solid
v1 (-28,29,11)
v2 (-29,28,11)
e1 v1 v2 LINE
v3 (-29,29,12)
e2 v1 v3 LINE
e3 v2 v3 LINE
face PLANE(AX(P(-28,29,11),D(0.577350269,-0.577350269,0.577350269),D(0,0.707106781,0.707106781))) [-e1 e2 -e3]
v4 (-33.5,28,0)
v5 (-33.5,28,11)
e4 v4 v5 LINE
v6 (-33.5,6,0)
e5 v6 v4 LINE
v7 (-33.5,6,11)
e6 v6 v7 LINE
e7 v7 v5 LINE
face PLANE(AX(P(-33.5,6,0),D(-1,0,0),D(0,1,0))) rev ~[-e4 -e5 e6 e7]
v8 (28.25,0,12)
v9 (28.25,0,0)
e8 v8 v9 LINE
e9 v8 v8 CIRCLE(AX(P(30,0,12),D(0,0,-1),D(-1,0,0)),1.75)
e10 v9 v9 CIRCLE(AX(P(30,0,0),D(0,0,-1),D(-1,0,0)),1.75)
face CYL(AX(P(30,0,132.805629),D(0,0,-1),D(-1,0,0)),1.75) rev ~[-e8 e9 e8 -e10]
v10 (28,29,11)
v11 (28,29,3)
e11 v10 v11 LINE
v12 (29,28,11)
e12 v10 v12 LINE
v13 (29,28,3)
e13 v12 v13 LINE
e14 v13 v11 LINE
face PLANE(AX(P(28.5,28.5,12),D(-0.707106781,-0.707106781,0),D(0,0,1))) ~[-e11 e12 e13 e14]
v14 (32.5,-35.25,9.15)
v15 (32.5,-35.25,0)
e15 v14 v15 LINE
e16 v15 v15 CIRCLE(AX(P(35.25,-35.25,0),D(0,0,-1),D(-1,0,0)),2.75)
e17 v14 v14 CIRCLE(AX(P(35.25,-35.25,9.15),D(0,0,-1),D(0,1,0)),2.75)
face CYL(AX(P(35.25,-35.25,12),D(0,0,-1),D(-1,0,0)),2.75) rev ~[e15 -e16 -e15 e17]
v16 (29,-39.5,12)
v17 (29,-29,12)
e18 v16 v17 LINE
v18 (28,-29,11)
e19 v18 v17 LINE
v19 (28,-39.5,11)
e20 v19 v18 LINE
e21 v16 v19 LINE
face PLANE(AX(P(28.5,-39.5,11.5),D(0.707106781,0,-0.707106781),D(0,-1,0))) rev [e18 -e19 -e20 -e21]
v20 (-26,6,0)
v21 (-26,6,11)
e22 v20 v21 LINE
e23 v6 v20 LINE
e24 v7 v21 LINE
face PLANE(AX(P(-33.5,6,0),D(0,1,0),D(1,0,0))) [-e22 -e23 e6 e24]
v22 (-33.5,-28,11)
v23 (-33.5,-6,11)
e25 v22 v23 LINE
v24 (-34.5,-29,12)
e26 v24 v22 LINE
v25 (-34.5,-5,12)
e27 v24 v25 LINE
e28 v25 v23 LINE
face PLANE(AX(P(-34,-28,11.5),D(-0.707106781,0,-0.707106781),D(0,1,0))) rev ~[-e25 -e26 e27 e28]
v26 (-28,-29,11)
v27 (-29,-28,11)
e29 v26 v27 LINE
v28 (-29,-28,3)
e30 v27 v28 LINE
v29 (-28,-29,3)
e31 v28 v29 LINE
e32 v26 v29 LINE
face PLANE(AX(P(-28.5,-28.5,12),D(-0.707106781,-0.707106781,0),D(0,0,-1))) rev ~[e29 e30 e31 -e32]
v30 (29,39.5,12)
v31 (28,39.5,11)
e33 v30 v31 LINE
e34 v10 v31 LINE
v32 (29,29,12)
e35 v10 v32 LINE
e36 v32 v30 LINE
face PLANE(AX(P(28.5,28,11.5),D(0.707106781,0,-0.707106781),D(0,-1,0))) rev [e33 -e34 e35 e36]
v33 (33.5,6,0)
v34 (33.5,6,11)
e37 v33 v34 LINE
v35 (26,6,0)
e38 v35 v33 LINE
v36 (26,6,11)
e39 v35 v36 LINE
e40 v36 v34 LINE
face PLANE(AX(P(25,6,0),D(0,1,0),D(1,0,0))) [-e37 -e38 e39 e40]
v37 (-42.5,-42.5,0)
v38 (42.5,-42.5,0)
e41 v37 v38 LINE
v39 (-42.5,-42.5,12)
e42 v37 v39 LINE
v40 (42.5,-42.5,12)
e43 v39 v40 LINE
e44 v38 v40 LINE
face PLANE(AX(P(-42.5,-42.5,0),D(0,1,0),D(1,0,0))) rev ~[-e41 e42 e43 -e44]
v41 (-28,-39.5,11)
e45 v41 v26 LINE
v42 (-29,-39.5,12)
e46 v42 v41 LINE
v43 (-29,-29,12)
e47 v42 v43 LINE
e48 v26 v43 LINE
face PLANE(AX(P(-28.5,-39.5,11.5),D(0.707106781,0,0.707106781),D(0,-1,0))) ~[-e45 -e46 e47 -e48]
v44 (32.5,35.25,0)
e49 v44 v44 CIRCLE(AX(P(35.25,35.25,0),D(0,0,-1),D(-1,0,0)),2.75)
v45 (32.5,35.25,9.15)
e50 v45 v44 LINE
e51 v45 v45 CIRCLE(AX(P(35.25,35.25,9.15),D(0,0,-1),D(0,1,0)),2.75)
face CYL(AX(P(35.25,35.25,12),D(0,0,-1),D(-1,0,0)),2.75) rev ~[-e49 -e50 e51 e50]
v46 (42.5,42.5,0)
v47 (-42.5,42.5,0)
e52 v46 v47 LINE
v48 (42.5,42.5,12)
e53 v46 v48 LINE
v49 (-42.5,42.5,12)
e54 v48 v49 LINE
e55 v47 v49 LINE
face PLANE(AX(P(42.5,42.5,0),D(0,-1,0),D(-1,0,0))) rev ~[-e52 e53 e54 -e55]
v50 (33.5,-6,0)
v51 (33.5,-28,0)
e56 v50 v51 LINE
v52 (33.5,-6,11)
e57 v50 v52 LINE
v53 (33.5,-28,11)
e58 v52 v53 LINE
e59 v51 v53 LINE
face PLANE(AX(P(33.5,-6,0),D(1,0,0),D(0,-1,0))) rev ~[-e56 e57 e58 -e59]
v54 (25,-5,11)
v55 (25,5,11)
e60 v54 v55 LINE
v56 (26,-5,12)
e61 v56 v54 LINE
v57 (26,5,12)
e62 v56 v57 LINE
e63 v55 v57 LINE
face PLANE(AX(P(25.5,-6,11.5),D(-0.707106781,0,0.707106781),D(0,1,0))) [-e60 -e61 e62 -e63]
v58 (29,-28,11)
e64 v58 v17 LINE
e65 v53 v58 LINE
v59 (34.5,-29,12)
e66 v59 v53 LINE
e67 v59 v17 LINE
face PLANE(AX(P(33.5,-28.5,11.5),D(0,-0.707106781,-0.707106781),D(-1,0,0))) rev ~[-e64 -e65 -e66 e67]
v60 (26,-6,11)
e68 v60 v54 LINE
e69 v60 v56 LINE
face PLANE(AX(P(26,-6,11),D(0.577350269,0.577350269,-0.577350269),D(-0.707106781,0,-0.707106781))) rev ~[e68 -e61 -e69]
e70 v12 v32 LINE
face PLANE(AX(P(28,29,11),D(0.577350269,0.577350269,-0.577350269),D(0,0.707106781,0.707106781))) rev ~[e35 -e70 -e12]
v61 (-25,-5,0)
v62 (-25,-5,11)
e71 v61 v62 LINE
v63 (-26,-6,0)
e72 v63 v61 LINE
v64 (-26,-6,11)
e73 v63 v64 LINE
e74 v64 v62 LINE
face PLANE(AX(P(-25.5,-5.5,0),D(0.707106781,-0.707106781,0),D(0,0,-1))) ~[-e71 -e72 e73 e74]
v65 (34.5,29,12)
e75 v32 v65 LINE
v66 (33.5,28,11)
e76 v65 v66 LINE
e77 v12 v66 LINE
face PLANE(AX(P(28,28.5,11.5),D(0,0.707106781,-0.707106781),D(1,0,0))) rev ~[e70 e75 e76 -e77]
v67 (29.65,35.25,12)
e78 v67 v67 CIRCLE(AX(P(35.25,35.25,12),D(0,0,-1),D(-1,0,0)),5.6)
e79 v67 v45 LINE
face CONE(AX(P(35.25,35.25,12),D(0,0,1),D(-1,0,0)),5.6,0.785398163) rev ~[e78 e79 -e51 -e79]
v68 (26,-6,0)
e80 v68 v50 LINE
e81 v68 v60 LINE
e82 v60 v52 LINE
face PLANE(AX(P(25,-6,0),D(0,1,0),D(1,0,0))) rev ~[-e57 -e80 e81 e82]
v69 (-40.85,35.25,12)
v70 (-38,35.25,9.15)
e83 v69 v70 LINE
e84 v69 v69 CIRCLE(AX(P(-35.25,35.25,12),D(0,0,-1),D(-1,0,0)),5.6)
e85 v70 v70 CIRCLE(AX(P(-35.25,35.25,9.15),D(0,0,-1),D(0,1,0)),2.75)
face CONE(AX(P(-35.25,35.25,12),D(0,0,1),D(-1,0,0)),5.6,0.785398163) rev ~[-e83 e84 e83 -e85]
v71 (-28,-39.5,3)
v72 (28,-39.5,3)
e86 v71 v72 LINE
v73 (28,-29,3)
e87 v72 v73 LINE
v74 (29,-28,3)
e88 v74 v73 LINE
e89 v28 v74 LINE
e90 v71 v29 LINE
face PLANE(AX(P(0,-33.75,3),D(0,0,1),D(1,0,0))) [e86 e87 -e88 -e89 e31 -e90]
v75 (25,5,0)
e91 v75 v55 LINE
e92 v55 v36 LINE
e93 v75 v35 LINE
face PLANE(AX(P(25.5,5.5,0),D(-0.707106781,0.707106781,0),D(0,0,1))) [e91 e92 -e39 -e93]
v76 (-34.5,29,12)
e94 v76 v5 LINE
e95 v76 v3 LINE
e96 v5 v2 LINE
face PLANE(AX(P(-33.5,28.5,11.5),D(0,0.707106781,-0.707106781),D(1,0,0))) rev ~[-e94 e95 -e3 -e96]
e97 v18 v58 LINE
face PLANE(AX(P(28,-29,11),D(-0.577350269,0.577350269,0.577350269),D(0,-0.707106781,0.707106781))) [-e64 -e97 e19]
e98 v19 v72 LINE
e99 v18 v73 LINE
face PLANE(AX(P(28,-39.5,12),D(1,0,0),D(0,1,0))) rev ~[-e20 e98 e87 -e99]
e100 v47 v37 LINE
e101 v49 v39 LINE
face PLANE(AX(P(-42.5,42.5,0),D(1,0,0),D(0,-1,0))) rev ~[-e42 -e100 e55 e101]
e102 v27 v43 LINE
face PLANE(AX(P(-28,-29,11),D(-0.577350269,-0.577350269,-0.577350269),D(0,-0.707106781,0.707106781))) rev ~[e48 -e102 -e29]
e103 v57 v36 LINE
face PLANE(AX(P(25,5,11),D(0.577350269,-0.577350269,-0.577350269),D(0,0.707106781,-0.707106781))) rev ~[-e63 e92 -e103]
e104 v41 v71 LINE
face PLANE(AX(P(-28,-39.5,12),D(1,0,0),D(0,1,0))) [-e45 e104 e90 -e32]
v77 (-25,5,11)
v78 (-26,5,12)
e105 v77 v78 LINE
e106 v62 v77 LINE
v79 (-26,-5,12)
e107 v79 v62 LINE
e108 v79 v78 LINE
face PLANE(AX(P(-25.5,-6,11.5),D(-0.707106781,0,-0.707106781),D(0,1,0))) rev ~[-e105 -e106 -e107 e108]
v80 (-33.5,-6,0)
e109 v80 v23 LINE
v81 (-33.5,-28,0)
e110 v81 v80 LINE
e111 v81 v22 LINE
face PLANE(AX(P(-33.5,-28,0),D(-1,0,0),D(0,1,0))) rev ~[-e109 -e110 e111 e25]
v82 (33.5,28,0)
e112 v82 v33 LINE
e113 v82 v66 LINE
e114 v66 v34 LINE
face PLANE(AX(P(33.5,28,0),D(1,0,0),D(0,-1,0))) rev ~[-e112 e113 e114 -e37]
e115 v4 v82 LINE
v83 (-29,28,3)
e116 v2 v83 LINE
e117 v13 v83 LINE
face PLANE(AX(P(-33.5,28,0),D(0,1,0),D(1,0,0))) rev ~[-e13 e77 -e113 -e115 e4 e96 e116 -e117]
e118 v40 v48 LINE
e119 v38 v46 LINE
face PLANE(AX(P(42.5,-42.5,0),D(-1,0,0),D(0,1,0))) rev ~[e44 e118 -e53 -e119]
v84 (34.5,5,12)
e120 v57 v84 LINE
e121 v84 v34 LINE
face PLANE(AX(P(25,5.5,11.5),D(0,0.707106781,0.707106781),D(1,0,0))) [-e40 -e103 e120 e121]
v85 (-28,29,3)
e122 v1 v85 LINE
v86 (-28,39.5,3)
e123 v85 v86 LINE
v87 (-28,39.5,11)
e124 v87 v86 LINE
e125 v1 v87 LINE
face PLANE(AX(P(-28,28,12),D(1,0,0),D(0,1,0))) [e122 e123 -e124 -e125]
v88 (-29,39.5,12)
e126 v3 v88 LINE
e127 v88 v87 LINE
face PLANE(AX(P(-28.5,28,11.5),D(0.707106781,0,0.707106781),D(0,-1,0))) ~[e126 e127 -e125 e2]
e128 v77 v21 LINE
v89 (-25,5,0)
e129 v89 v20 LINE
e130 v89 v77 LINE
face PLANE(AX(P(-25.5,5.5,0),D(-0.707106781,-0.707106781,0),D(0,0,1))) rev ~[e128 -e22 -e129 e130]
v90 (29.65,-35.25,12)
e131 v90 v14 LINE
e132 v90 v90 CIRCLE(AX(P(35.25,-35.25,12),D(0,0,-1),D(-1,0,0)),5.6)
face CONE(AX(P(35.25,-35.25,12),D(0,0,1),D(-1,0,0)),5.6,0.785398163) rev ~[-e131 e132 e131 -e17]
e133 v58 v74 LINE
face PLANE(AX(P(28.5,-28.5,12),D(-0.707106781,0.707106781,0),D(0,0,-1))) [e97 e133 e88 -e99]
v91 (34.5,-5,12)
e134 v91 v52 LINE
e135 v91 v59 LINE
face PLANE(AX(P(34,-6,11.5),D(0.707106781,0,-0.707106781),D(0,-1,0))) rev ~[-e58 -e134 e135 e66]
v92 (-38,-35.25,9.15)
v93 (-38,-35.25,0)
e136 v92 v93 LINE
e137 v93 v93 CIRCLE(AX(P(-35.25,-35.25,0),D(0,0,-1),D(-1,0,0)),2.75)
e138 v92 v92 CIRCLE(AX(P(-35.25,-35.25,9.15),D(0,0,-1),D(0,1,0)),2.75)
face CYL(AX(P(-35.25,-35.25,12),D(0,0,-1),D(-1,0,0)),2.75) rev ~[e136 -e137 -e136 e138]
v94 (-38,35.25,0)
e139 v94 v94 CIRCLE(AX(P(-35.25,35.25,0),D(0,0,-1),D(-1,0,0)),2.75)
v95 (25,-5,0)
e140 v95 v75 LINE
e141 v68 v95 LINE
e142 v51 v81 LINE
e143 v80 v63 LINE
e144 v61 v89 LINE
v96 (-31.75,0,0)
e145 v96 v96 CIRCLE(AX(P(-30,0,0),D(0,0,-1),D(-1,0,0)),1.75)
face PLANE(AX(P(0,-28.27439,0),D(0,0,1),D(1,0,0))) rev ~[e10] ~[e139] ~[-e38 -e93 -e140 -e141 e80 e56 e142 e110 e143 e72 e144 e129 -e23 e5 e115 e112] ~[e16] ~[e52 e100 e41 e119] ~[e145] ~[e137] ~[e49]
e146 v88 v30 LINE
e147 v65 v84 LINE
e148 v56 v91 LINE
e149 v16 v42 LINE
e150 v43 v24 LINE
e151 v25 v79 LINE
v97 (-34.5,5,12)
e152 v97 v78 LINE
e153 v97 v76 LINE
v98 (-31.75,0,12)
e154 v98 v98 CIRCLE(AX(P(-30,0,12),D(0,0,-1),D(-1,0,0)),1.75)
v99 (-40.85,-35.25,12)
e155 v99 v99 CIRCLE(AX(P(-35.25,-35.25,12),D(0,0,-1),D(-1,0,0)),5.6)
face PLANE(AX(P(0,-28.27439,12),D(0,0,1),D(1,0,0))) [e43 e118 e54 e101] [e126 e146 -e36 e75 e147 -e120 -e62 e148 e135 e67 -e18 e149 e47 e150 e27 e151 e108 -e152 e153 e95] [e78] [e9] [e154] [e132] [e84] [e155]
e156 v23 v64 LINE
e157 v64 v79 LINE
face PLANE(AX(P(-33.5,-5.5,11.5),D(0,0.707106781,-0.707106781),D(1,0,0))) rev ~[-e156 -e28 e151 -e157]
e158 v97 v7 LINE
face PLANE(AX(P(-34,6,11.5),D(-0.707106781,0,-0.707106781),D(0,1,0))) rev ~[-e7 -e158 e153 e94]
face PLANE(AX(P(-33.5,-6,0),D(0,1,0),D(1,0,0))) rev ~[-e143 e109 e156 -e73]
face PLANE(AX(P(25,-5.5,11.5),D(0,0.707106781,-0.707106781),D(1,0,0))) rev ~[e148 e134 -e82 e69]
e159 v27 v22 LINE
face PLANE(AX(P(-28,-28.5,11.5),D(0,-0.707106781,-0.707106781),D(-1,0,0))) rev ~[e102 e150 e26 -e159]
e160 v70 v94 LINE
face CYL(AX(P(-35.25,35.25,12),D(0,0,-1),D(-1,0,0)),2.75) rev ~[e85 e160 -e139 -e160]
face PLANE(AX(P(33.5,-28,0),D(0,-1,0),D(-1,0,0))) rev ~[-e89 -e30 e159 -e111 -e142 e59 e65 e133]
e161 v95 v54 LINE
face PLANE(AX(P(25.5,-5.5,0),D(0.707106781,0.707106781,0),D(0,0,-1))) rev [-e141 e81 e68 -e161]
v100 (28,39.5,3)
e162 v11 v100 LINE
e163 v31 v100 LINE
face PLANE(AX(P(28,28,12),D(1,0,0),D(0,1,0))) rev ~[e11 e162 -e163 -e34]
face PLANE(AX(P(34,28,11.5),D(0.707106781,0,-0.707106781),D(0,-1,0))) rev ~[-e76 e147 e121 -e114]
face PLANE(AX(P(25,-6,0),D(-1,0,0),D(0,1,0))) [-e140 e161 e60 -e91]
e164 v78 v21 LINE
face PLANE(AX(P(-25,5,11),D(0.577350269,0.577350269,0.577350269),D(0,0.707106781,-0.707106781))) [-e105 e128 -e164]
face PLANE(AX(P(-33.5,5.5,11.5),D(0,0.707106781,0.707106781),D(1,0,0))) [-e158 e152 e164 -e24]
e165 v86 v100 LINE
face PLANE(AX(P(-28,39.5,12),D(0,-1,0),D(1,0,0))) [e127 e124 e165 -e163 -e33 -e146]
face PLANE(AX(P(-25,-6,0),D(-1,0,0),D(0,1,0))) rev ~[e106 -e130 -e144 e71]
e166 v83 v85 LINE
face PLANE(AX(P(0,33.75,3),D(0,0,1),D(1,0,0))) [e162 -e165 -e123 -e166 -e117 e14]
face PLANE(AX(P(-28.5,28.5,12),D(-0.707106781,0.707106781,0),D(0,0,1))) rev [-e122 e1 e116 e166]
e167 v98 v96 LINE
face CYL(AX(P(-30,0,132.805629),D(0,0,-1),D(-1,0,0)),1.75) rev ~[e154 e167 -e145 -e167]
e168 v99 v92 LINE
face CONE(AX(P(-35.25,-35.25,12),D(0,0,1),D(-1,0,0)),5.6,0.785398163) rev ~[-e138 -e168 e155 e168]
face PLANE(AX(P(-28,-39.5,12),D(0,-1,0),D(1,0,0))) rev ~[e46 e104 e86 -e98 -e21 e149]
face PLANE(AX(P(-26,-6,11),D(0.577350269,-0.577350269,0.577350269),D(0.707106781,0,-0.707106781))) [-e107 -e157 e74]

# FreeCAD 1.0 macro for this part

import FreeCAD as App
import Part
import Sketcher
Q = App.Units.Quantity


def edges_at(feature, points):
    """Names of the edges that pass closest to the given points."""
    edges = feature.Shape.Edges
    near = lambda p: min(range(len(edges)), key=lambda i: edges[i].distToShape(Part.Vertex(*p))[0])
    return sorted({f"Edge{near(p) + 1}" for p in points})

doc = App.newDocument("Part")
body = doc.addObject("PartDesign::Body", "Body")

# Sketch on XY plane
sketch1 = body.newObject("Sketcher::SketchObject", "Sketch")
sketch1.AttachmentSupport = (doc.getObject("XY_Plane"), [""])
sketch1.MapMode = "FlatFace"
sketch1.addGeometry(Part.LineSegment(App.Vector(-42.5, -42.5, 0), App.Vector(42.5, -42.5, 0)), False)
sketch1.addGeometry(Part.LineSegment(App.Vector(42.5, -42.5, 0), App.Vector(42.5, 42.5, 0)), False)
sketch1.addGeometry(Part.LineSegment(App.Vector(42.5, 42.5, 0), App.Vector(-42.5, 42.5, 0)), False)
sketch1.addGeometry(Part.LineSegment(App.Vector(-42.5, 42.5, 0), App.Vector(-42.5, -42.5, 0)), False)
sketch1.addGeometry(Part.LineSegment(App.Vector(33.5, -28, 0), App.Vector(-33.5, -28, 0)), False)
sketch1.addGeometry(Part.LineSegment(App.Vector(-33.5, -28, 0), App.Vector(-33.5, -6, 0)), False)
sketch1.addGeometry(Part.LineSegment(App.Vector(-33.5, -6, 0), App.Vector(-25, -6, 0)), False)
sketch1.addGeometry(Part.LineSegment(App.Vector(-25, -6, 0), App.Vector(-25, 6, 0)), False)
sketch1.addGeometry(Part.LineSegment(App.Vector(-25, 6, 0), App.Vector(-33.5, 6, 0)), False)
sketch1.addGeometry(Part.LineSegment(App.Vector(-33.5, 6, 0), App.Vector(-33.5, 28, 0)), False)
sketch1.addGeometry(Part.LineSegment(App.Vector(-33.5, 28, 0), App.Vector(33.5, 28, 0)), False)
sketch1.addGeometry(Part.LineSegment(App.Vector(33.5, 28, 0), App.Vector(33.5, 6, 0)), False)
sketch1.addGeometry(Part.LineSegment(App.Vector(33.5, 6, 0), App.Vector(25, 6, 0)), False)
sketch1.addGeometry(Part.LineSegment(App.Vector(25, 6, 0), App.Vector(25, -6, 0)), False)
sketch1.addGeometry(Part.LineSegment(App.Vector(25, -6, 0), App.Vector(33.5, -6, 0)), False)
sketch1.addGeometry(Part.LineSegment(App.Vector(33.5, -6, 0), App.Vector(33.5, -28, 0)), False)
sketch1.addConstraint(Sketcher.Constraint("Coincident", 0, 2, 1, 1))
sketch1.addConstraint(Sketcher.Constraint("Coincident", 1, 2, 2, 1))
sketch1.addConstraint(Sketcher.Constraint("Coincident", 2, 2, 3, 1))
sketch1.addConstraint(Sketcher.Constraint("Coincident", 3, 2, 0, 1))
sketch1.addConstraint(Sketcher.Constraint("Coincident", 4, 2, 5, 1))
sketch1.addConstraint(Sketcher.Constraint("Coincident", 5, 2, 6, 1))
sketch1.addConstraint(Sketcher.Constraint("Coincident", 6, 2, 7, 1))
sketch1.addConstraint(Sketcher.Constraint("Coincident", 7, 2, 8, 1))
sketch1.addConstraint(Sketcher.Constraint("Coincident", 8, 2, 9, 1))
sketch1.addConstraint(Sketcher.Constraint("Coincident", 9, 2, 10, 1))
sketch1.addConstraint(Sketcher.Constraint("Coincident", 10, 2, 11, 1))
sketch1.addConstraint(Sketcher.Constraint("Coincident", 11, 2, 12, 1))
sketch1.addConstraint(Sketcher.Constraint("Coincident", 12, 2, 13, 1))
sketch1.addConstraint(Sketcher.Constraint("Coincident", 13, 2, 14, 1))
sketch1.addConstraint(Sketcher.Constraint("Coincident", 14, 2, 15, 1))
sketch1.addConstraint(Sketcher.Constraint("Coincident", 15, 2, 4, 1))
sketch1.addConstraint(Sketcher.Constraint("Horizontal", 0))
sketch1.addConstraint(Sketcher.Constraint("Vertical", 1))
sketch1.addConstraint(Sketcher.Constraint("Horizontal", 2))
sketch1.addConstraint(Sketcher.Constraint("Vertical", 3))
sketch1.addConstraint(Sketcher.Constraint("Horizontal", 4))
sketch1.addConstraint(Sketcher.Constraint("Vertical", 5))
sketch1.addConstraint(Sketcher.Constraint("Horizontal", 6))
sketch1.addConstraint(Sketcher.Constraint("Vertical", 7))
sketch1.addConstraint(Sketcher.Constraint("Horizontal", 8))
sketch1.addConstraint(Sketcher.Constraint("Vertical", 9))
sketch1.addConstraint(Sketcher.Constraint("Horizontal", 10))
sketch1.addConstraint(Sketcher.Constraint("Vertical", 11))
sketch1.addConstraint(Sketcher.Constraint("Horizontal", 12))
sketch1.addConstraint(Sketcher.Constraint("Vertical", 13))
sketch1.addConstraint(Sketcher.Constraint("Horizontal", 14))
sketch1.addConstraint(Sketcher.Constraint("Vertical", 15))
sketch1.addConstraint(Sketcher.Constraint("Symmetric", 0, 2, 2, 2, -1, 1))
sketch1.addConstraint(Sketcher.Constraint("Symmetric", 4, 2, 10, 2, -1, 1))
sketch1.addConstraint(Sketcher.Constraint("Symmetric", 6, 2, 12, 2, -1, 1))
sketch1.addConstraint(Sketcher.Constraint("Symmetric", 8, 2, 14, 2, -1, 1))
sketch1.addConstraint(Sketcher.Constraint("Symmetric", 8, 2, 11, 2, -2))
sketch1.addConstraint(Sketcher.Constraint("Equal", 2, 1))
sketch1.addConstraint(Sketcher.Constraint("DistanceX", 0, 1, 0, 2, Q("85 mm")))
sketch1.addConstraint(Sketcher.Constraint("DistanceX", 4, 2, 4, 1, Q("67 mm")))
sketch1.addConstraint(Sketcher.Constraint("DistanceY", 5, 1, 5, 2, Q("22 mm")))
sketch1.addConstraint(Sketcher.Constraint("DistanceY", 7, 1, 7, 2, Q("12 mm")))
sketch1.addConstraint(Sketcher.Constraint("DistanceX", 6, 1, 6, 2, Q("8.5 mm")))
pad1 = body.newObject("PartDesign::Pad", "Pad")
pad1.Profile = sketch1
pad1.Length = 12

# Sketch on XY plane
sketch2 = body.newObject("Sketcher::SketchObject", "Sketch001")
sketch2.AttachmentSupport = (doc.getObject("XY_Plane"), [""])
sketch2.MapMode = "FlatFace"
sketch2.AttachmentOffset = App.Placement(App.Vector(0, 0, 12), App.Rotation())
sketch2.addGeometry(Part.Circle(App.Vector(-30, 0, 0), App.Vector(0, 0, 1), 1.75), False)
sketch2.addGeometry(Part.Circle(App.Vector(30, 0, 0), App.Vector(0, 0, 1), 1.75), False)
sketch2.addConstraint(Sketcher.Constraint("Equal", 0, 1))
sketch2.addConstraint(Sketcher.Constraint("Symmetric", 0, 3, 1, 3, -1, 1))
sketch2.addConstraint(Sketcher.Constraint("PointOnObject", 0, 3, -1))
sketch2.addConstraint(Sketcher.Constraint("Diameter", 0, Q("3.5 mm")))
sketch2.addConstraint(Sketcher.Constraint("DistanceX", 0, 3, -1, 1, Q("30 mm")))
doc.recompute()
hole = body.newObject("PartDesign::Hole", "Hole")
hole.Profile = sketch2
hole.ThreadType = "None"
hole.Diameter = 3.5
hole.DepthType = "ThroughAll"

# Sketch on XY plane
sketch3 = body.newObject("Sketcher::SketchObject", "Sketch002")
sketch3.AttachmentSupport = (doc.getObject("XY_Plane"), [""])
sketch3.MapMode = "FlatFace"
sketch3.AttachmentOffset = App.Placement(App.Vector(0, 0, 12), App.Rotation())
sketch3.addGeometry(Part.Circle(App.Vector(-35.25, 35.25, 0), App.Vector(0, 0, 1), 2.75), False)
sketch3.addGeometry(Part.Circle(App.Vector(35.25, 35.25, 0), App.Vector(0, 0, 1), 2.75), False)
sketch3.addGeometry(Part.Circle(App.Vector(35.25, -35.25, 0), App.Vector(0, 0, 1), 2.75), False)
sketch3.addGeometry(Part.Circle(App.Vector(-35.25, -35.25, 0), App.Vector(0, 0, 1), 2.75), False)
sketch3.addConstraint(Sketcher.Constraint("Equal", 0, 1))
sketch3.addConstraint(Sketcher.Constraint("Equal", 1, 2))
sketch3.addConstraint(Sketcher.Constraint("Equal", 2, 3))
sketch3.addConstraint(Sketcher.Constraint("Symmetric", 0, 3, 2, 3, -1, 1))
sketch3.addConstraint(Sketcher.Constraint("Symmetric", 1, 3, 3, 3, -1, 1))
sketch3.addConstraint(Sketcher.Constraint("Symmetric", 0, 3, 1, 3, -2))
sketch3.addConstraint(Sketcher.Constraint("Diameter", 0, Q("5.5 mm")))
sketch3.addConstraint(Sketcher.Constraint("DistanceX", 0, 3, 1, 3, Q("70.5 mm")))
sketch3.addConstraint(Sketcher.Constraint("DistanceY", 2, 3, 1, 3, Q("70.5 mm")))
doc.recompute()
hole2 = body.newObject("PartDesign::Hole", "Hole001")
hole2.Profile = sketch3
hole2.ThreadType = "None"
hole2.Diameter = 5.5
hole2.DepthType = "ThroughAll"
hole2.HoleCutType = "Countersink"
hole2.HoleCutDiameter = 11.2
hole2.HoleCutCountersinkAngle = 90

# Sketch on XY plane
sketch4 = body.newObject("Sketcher::SketchObject", "Sketch003")
sketch4.AttachmentSupport = (doc.getObject("XY_Plane"), [""])
sketch4.MapMode = "FlatFace"
sketch4.AttachmentOffset = App.Placement(App.Vector(0, 0, 12), App.Rotation())
sketch4.addGeometry(Part.LineSegment(App.Vector(-28, -28, 0), App.Vector(-28, -39.5, 0)), False)
sketch4.addGeometry(Part.LineSegment(App.Vector(-28, -39.5, 0), App.Vector(28, -39.5, 0)), False)
sketch4.addGeometry(Part.LineSegment(App.Vector(28, -39.5, 0), App.Vector(28, -28, 0)), False)
sketch4.addGeometry(Part.LineSegment(App.Vector(28, -28, 0), App.Vector(-28, -28, 0)), False)
sketch4.addGeometry(Part.LineSegment(App.Vector(-28, 39.5, 0), App.Vector(-28, 28, 0)), False)
sketch4.addGeometry(Part.LineSegment(App.Vector(-28, 28, 0), App.Vector(28, 28, 0)), False)
sketch4.addGeometry(Part.LineSegment(App.Vector(28, 28, 0), App.Vector(28, 39.5, 0)), False)
sketch4.addGeometry(Part.LineSegment(App.Vector(28, 39.5, 0), App.Vector(-28, 39.5, 0)), False)
sketch4.addConstraint(Sketcher.Constraint("Coincident", 0, 2, 1, 1))
sketch4.addConstraint(Sketcher.Constraint("Coincident", 1, 2, 2, 1))
sketch4.addConstraint(Sketcher.Constraint("Coincident", 2, 2, 3, 1))
sketch4.addConstraint(Sketcher.Constraint("Coincident", 3, 2, 0, 1))
sketch4.addConstraint(Sketcher.Constraint("Coincident", 4, 2, 5, 1))
sketch4.addConstraint(Sketcher.Constraint("Coincident", 5, 2, 6, 1))
sketch4.addConstraint(Sketcher.Constraint("Coincident", 6, 2, 7, 1))
sketch4.addConstraint(Sketcher.Constraint("Coincident", 7, 2, 4, 1))
sketch4.addConstraint(Sketcher.Constraint("Vertical", 0))
sketch4.addConstraint(Sketcher.Constraint("Horizontal", 1))
sketch4.addConstraint(Sketcher.Constraint("Vertical", 2))
sketch4.addConstraint(Sketcher.Constraint("Horizontal", 3))
sketch4.addConstraint(Sketcher.Constraint("Vertical", 4))
sketch4.addConstraint(Sketcher.Constraint("Horizontal", 5))
sketch4.addConstraint(Sketcher.Constraint("Vertical", 6))
sketch4.addConstraint(Sketcher.Constraint("Horizontal", 7))
sketch4.addConstraint(Sketcher.Constraint("Symmetric", 2, 2, 4, 2, -1, 1))
sketch4.addConstraint(Sketcher.Constraint("Symmetric", 0, 2, 6, 2, -1, 1))
sketch4.addConstraint(Sketcher.Constraint("Vertical", 3, 2, 4, 2))
sketch4.addConstraint(Sketcher.Constraint("DistanceX", 1, 1, 1, 2, Q("56 mm")))
sketch4.addConstraint(Sketcher.Constraint("DistanceY", 0, 2, 0, 1, Q("11.5 mm")))
sketch4.addConstraint(Sketcher.Constraint("DistanceY", 2, 2, -1, 1, Q("28 mm")))
pocket1 = body.newObject("PartDesign::Pocket", "Pocket")
pocket1.Profile = sketch4
pocket1.Length = 9
doc.recompute()

chamfer = body.newObject("PartDesign::Chamfer", "Chamfer")
chamfer.Base = (pocket1, edges_at(pocket1, [
    (-30.75, 28, 12),
    (-33.5, 17, 12),
    (-29.25, 6, 12),
    (-25, 0, 12),
    (-29.25, -6, 12),
    (-33.5, -17, 12),
    (-30.75, -28, 12),
    (30.75, 28, 12),
    (33.5, 17, 12),
    (29.25, 6, 12),
    (25, 0, 12),
    (29.25, -6, 12),
    (33.5, -17, 12),
    (30.75, -28, 12),
    (-28, -28, 7.5),
    (28, -28, 7.5),
    (-28, 28, 7.5),
    (28, 28, 7.5),
    (-25, 6, 6),
    (-25, -6, 6),
    (25, 6, 6),
    (25, -6, 6),
    (-28, 33.75, 12),
    (28, 33.75, 12),
    (28, -33.75, 12),
    (-28, -33.75, 12),
]))
chamfer.Size = 1

doc.recompute()
